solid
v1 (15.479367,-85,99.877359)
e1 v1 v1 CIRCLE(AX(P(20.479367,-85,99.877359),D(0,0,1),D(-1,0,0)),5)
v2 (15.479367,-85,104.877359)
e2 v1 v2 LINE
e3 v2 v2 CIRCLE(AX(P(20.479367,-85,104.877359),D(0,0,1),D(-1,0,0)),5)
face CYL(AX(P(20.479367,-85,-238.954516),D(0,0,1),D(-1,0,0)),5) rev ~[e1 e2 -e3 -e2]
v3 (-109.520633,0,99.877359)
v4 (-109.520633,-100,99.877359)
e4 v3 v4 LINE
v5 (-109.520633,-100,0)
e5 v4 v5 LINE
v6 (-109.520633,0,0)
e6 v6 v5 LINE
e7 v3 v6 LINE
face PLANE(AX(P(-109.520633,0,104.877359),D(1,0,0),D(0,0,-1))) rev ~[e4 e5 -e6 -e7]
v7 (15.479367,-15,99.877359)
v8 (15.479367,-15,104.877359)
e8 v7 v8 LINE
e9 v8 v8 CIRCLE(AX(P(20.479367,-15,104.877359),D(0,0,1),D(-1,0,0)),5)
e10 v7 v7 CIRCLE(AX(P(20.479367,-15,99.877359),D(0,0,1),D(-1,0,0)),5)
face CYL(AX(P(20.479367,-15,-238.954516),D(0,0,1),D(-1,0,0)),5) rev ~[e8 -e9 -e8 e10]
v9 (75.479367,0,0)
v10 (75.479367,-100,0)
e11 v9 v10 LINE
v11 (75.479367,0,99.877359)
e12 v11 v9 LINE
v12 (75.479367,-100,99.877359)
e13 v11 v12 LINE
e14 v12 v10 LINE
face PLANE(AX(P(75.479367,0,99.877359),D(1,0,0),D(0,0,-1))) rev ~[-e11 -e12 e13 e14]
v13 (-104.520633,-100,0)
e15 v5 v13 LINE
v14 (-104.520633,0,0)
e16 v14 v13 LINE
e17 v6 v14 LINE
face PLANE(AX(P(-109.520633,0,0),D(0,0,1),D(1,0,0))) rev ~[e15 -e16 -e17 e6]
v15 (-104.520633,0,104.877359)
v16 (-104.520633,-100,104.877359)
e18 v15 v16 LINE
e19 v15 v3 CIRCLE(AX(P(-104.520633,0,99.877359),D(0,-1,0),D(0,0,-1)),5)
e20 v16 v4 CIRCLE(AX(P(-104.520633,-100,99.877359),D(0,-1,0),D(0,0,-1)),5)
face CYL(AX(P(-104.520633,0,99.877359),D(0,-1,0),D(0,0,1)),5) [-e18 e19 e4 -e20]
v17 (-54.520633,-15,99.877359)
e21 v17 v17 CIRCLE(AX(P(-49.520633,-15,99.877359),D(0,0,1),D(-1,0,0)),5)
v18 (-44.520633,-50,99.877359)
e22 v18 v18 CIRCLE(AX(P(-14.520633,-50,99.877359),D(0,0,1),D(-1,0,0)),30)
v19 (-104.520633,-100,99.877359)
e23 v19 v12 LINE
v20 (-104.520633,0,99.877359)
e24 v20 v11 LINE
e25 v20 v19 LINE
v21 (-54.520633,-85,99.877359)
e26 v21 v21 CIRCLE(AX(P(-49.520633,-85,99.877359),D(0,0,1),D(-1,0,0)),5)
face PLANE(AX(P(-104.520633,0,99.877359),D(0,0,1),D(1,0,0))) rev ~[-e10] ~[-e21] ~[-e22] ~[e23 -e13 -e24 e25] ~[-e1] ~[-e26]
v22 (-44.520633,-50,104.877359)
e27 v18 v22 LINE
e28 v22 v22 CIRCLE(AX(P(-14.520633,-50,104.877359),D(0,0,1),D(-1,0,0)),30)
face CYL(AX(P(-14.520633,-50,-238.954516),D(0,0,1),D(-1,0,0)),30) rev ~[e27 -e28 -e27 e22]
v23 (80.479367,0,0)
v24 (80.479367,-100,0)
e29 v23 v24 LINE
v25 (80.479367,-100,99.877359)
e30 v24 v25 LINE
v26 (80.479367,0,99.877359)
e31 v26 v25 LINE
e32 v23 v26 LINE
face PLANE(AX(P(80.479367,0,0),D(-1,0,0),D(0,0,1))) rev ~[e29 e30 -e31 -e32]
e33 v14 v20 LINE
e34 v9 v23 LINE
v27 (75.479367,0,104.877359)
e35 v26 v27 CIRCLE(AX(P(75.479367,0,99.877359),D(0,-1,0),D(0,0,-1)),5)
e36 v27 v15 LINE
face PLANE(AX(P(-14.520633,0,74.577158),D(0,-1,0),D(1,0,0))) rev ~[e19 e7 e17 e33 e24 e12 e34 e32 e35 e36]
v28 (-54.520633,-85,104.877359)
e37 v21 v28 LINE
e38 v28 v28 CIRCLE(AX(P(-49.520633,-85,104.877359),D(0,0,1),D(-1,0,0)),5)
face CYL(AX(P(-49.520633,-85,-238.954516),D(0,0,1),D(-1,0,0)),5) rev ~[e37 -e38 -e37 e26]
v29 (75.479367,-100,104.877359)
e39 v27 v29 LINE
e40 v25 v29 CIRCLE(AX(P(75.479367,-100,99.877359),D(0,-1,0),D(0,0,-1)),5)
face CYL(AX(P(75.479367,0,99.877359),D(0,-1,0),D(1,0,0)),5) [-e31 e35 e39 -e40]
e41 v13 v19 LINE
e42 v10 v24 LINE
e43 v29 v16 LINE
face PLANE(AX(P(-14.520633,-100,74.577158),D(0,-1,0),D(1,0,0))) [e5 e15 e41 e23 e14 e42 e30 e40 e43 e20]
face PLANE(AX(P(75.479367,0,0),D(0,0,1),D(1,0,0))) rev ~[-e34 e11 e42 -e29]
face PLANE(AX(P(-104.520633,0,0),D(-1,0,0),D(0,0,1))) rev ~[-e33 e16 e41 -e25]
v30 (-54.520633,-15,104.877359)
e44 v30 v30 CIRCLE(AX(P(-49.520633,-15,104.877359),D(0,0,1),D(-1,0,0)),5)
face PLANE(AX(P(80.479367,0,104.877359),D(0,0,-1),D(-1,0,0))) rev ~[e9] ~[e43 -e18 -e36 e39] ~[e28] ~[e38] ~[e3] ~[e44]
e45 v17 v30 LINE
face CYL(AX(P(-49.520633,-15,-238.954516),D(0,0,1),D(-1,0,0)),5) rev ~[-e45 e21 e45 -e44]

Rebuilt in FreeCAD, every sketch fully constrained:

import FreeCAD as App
import Part
import Sketcher
from FreeCAD import Vector
Q = App.Units.Quantity


def edges_at(feature, points):
    """Names of the edges that pass closest to the given points."""
    edges = feature.Shape.Edges
    near = lambda p: min(range(len(edges)), key=lambda i: edges[i].distToShape(Part.Vertex(*p))[0])
    return sorted({f"Edge{near(p) + 1}" for p in points})

doc = App.newDocument("Part")
body = doc.addObject("PartDesign::Body", "Body")

sketch1 = body.newObject("Sketcher::SketchObject", "Sketch")
sketch1.AttachmentSupport = (doc.getObject("XZ_Plane"), [""])
sketch1.MapMode = "FlatFace"
sketch1.addGeometry(Part.LineSegment(Vector(-110, 0, 0), Vector(-105, 0, 0)), False)
sketch1.addGeometry(Part.LineSegment(Vector(-105, 0, 0), Vector(-105, 100, 0)), False)
sketch1.addGeometry(Part.LineSegment(Vector(-105, 100, 0), Vector(75, 100, 0)), False)
sketch1.addGeometry(Part.LineSegment(Vector(75, 100, 0), Vector(75, 0, 0)), False)
sketch1.addGeometry(Part.LineSegment(Vector(75, 0, 0), Vector(80, 0, 0)), False)
sketch1.addGeometry(Part.LineSegment(Vector(80, 0, 0), Vector(80, 105, 0)), False)
sketch1.addGeometry(Part.LineSegment(Vector(80, 105, 0), Vector(-110, 105, 0)), False)
sketch1.addGeometry(Part.LineSegment(Vector(-110, 105, 0), Vector(-110, 0, 0)), False)
sketch1.addConstraint(Sketcher.Constraint("Coincident", 0, 2, 1, 1))
sketch1.addConstraint(Sketcher.Constraint("Coincident", 1, 2, 2, 1))
sketch1.addConstraint(Sketcher.Constraint("Coincident", 2, 2, 3, 1))
sketch1.addConstraint(Sketcher.Constraint("Coincident", 3, 2, 4, 1))
sketch1.addConstraint(Sketcher.Constraint("Coincident", 4, 2, 5, 1))
sketch1.addConstraint(Sketcher.Constraint("Coincident", 5, 2, 6, 1))
sketch1.addConstraint(Sketcher.Constraint("Coincident", 6, 2, 7, 1))
sketch1.addConstraint(Sketcher.Constraint("Coincident", 7, 2, 0, 1))
sketch1.addConstraint(Sketcher.Constraint("Horizontal", 0))
sketch1.addConstraint(Sketcher.Constraint("Vertical", 1))
sketch1.addConstraint(Sketcher.Constraint("Horizontal", 2))
sketch1.addConstraint(Sketcher.Constraint("Vertical", 3))
sketch1.addConstraint(Sketcher.Constraint("Horizontal", 4))
sketch1.addConstraint(Sketcher.Constraint("Vertical", 5))
sketch1.addConstraint(Sketcher.Constraint("Horizontal", 6))
sketch1.addConstraint(Sketcher.Constraint("Vertical", 7))
sketch1.addConstraint(Sketcher.Constraint("PointOnObject", 0, 2, -1))
sketch1.addConstraint(Sketcher.Constraint("PointOnObject", 3, 2, -1))
sketch1.addConstraint(Sketcher.Constraint("Equal", 0, 4))
sketch1.addConstraint(Sketcher.Constraint("DistanceX", 0, 1, 0, 2, Q("5 mm")))
sketch1.addConstraint(Sketcher.Constraint("DistanceX", 2, 1, 2, 2, Q("180 mm")))
sketch1.addConstraint(Sketcher.Constraint("DistanceY", 2, 2, 5, 2, Q("5 mm")))
sketch1.addConstraint(Sketcher.Constraint("DistanceY", 1, 1, 1, 2, Q("99.877359 mm")))
sketch1.addConstraint(Sketcher.Constraint("DistanceX", 0, 2, -1, 1, Q("104.520633 mm")))
pad1 = body.newObject("PartDesign::Pad", "Pad")
pad1.Profile = sketch1
pad1.Length = 100
doc.recompute()

fillet = body.newObject("PartDesign::Fillet", "Fillet")
fillet.Base = (pad1, edges_at(pad1, [(80.479, -50, 104.877), (-109.521, -50, 104.877)]))
fillet.Radius = 5

sketch2 = body.newObject("Sketcher::SketchObject", "Sketch001")
sketch2.AttachmentSupport = (doc.getObject("XY_Plane"), [""])
sketch2.MapMode = "FlatFace"
sketch2.addGeometry(Part.Circle(Vector(-15, -50, 0), Vector(0, 0, 1), 30), False)
sketch2.addConstraint(Sketcher.Constraint("Diameter", 0, Q("60 mm")))
sketch2.addConstraint(Sketcher.Constraint("DistanceY", 0, 3, -1, 1, Q("50 mm")))
sketch2.addConstraint(Sketcher.Constraint("DistanceX", 0, 3, -1, 1, Q("14.520633 mm")))
doc.recompute()
hole = body.newObject("PartDesign::Hole", "Hole")
hole.Profile = sketch2
hole.ThreadType = "None"
hole.Diameter = 60
hole.DepthType = "ThroughAll"
hole.Reversed = True

sketch3 = body.newObject("Sketcher::SketchObject", "Sketch002")
sketch3.AttachmentSupport = (doc.getObject("XY_Plane"), [""])
sketch3.MapMode = "FlatFace"
sketch3.addGeometry(Part.Circle(Vector(-50, -15, 0), Vector(0, 0, 1), 5), False)
sketch3.addGeometry(Part.Circle(Vector(20, -15, 0), Vector(0, 0, 1), 5), False)
sketch3.addGeometry(Part.Circle(Vector(20, -85, 0), Vector(0, 0, 1), 5), False)
sketch3.addGeometry(Part.Circle(Vector(-50, -85, 0), Vector(0, 0, 1), 5), False)
sketch3.addConstraint(Sketcher.Constraint("Equal", 0, 1))
sketch3.addConstraint(Sketcher.Constraint("Equal", 1, 2))
sketch3.addConstraint(Sketcher.Constraint("Equal", 2, 3))
sketch3.addConstraint(Sketcher.Constraint("Horizontal", 0, 3, 1, 3))
sketch3.addConstraint(Sketcher.Constraint("Horizontal", 2, 3, 3, 3))
sketch3.addConstraint(Sketcher.Constraint("Vertical", 1, 3, 2, 3))
sketch3.addConstraint(Sketcher.Constraint("Vertical", 0, 3, 3, 3))
sketch3.addConstraint(Sketcher.Constraint("Diameter", 0, Q("10 mm")))
sketch3.addConstraint(Sketcher.Constraint("DistanceY", 0, 3, -1, 1, Q("15 mm")))
sketch3.addConstraint(Sketcher.Constraint("DistanceY", 2, 3, -1, 1, Q("85 mm")))
sketch3.addConstraint(Sketcher.Constraint("DistanceX", 0, 3, 1, 3, Q("70 mm")))
sketch3.addConstraint(Sketcher.Constraint("DistanceX", 0, 3, -1, 1, Q("49.520633 mm")))
doc.recompute()
hole2 = body.newObject("PartDesign::Hole", "Hole001")
hole2.Profile = sketch3
hole2.ThreadType = "None"
hole2.Diameter = 10
hole2.DepthType = "ThroughAll"
hole2.Reversed = True

doc.recompute()
